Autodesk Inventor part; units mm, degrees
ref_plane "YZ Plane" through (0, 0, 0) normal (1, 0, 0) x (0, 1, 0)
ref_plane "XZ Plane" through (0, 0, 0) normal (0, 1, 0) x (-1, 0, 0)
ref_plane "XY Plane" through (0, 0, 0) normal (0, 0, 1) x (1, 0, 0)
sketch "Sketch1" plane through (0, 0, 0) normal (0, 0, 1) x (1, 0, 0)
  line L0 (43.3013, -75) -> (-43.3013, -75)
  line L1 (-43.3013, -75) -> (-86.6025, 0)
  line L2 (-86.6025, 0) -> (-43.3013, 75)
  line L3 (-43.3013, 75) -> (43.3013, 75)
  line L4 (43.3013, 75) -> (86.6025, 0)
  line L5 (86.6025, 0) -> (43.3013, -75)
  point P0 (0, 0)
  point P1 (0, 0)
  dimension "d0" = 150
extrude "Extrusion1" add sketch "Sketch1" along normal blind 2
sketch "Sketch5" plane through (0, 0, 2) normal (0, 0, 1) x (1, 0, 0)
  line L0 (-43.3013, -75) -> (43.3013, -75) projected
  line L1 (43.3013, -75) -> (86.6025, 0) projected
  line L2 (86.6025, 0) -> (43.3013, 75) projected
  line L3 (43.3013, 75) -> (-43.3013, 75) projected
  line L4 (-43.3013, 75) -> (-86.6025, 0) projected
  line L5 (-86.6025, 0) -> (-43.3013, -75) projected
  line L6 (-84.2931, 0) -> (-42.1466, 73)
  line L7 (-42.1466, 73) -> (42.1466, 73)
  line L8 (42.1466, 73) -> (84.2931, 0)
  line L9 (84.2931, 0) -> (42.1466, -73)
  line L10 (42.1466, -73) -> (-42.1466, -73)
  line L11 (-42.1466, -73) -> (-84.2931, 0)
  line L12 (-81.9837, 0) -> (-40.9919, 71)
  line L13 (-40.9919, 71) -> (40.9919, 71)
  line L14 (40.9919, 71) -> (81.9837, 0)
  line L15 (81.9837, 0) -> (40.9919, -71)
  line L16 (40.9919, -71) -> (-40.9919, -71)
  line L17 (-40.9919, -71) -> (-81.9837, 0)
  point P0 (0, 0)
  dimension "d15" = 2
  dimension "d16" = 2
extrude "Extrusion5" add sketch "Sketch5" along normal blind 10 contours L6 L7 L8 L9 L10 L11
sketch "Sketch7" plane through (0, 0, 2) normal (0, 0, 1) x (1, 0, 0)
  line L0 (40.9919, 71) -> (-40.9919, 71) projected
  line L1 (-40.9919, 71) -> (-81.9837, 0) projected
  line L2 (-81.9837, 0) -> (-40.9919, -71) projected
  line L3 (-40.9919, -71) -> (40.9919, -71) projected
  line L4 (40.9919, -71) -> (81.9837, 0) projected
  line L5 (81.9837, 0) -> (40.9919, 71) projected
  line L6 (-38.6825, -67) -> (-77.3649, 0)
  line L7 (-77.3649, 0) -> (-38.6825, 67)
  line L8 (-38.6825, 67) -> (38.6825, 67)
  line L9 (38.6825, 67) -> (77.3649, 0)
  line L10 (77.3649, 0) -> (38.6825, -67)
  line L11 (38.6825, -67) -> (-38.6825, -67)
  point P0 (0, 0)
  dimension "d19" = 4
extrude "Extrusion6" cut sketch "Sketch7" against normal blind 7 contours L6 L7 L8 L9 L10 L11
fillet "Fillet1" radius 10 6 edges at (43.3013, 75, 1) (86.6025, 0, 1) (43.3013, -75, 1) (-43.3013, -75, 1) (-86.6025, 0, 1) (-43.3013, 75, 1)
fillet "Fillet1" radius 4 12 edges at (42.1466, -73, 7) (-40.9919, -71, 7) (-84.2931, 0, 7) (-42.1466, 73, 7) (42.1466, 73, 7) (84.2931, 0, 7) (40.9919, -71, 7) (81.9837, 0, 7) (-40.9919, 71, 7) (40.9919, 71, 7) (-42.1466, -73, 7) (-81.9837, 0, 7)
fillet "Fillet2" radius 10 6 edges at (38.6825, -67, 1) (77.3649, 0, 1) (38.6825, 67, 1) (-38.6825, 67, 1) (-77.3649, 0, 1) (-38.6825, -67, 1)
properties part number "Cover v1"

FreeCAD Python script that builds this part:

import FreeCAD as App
import Part
import Sketcher
Q = App.Units.Quantity


def edges_at(feature, points):
    """Names of the edges that pass closest to the given points."""
    edges = feature.Shape.Edges
    near = lambda p: min(range(len(edges)), key=lambda i: edges[i].distToShape(Part.Vertex(*p))[0])
    return sorted({f"Edge{near(p) + 1}" for p in points})

doc = App.newDocument("Part")
body = doc.addObject("PartDesign::Body", "Body")

# Sketch on XY plane
sketch1 = body.newObject("Sketcher::SketchObject", "Sketch")
sketch1.AttachmentSupport = (doc.getObject("XY_Plane"), [""])
sketch1.MapMode = "FlatFace"
sketch1.addGeometry([
    Part.LineSegment(App.Vector(-43.3013, -75, 0), App.Vector(43.3013, -75, 0)),  # 0
    Part.LineSegment(App.Vector(43.3013, -75, 0), App.Vector(86.6025, 0, 0)),  # 1
    Part.LineSegment(App.Vector(86.6025, 0, 0), App.Vector(43.3013, 75, 0)),  # 2
    Part.LineSegment(App.Vector(43.3013, 75, 0), App.Vector(-43.3013, 75, 0)),  # 3
    Part.LineSegment(App.Vector(-43.3013, 75, 0), App.Vector(-86.6025, 0, 0)),  # 4
    Part.LineSegment(App.Vector(-86.6025, 0, 0), App.Vector(-43.3013, -75, 0)),  # 5
], False)
sketch1.addConstraint([
    Sketcher.Constraint("Coincident", 0, 2, 1, 1),
    Sketcher.Constraint("Coincident", 1, 2, 2, 1),
    Sketcher.Constraint("Coincident", 2, 2, 3, 1),
    Sketcher.Constraint("Coincident", 3, 2, 4, 1),
    Sketcher.Constraint("Coincident", 4, 2, 5, 1),
    Sketcher.Constraint("Coincident", 5, 2, 0, 1),
    Sketcher.Constraint("Horizontal", 0),
    Sketcher.Constraint("Horizontal", 3),
    Sketcher.Constraint("Symmetric", 0, 2, 3, 2, -1, 1),
    Sketcher.Constraint("Symmetric", 1, 2, 4, 2, -1, 1),
    Sketcher.Constraint("PointOnObject", 1, 2, -1),
    Sketcher.Constraint("Parallel", 2, 5),
    Sketcher.Constraint("Vertical", 0, 2, 2, 2),
    Sketcher.Constraint("DistanceY", 0, 2, 2, 2, 150.0),
    Sketcher.Constraint("Angle", 1, Q("60 deg")),
    Sketcher.Constraint("DistanceX", 0, 1, 0, 2, 86.6026),
])
pad1 = body.newObject("PartDesign::Pad", "Pad")
pad1.Profile = sketch1
pad1.Length = 2

# Sketch on XY plane
sketch2 = body.newObject("Sketcher::SketchObject", "Sketch001")
sketch2.AttachmentSupport = (doc.getObject("XY_Plane"), [""])
sketch2.MapMode = "FlatFace"
sketch2.AttachmentOffset = App.Placement(App.Vector(0, 0, 2), App.Rotation())
sketch2.addGeometry([
    Part.LineSegment(App.Vector(-42.1466, 73, 0), App.Vector(-84.2931, 0, 0)),  # 0
    Part.LineSegment(App.Vector(-84.2931, 0, 0), App.Vector(-42.1466, -73, 0)),  # 1
    Part.LineSegment(App.Vector(-42.1466, -73, 0), App.Vector(42.1466, -73, 0)),  # 2
    Part.LineSegment(App.Vector(42.1466, -73, 0), App.Vector(84.2931, 0, 0)),  # 3
    Part.LineSegment(App.Vector(84.2931, 0, 0), App.Vector(42.1466, 73, 0)),  # 4
    Part.LineSegment(App.Vector(42.1466, 73, 0), App.Vector(-42.1466, 73, 0)),  # 5
    Part.LineSegment(App.Vector(-40.9919, -71, 0), App.Vector(-81.9837, 0, 0)),  # 6
    Part.LineSegment(App.Vector(-81.9837, 0, 0), App.Vector(-40.9919, 71, 0)),  # 7
    Part.LineSegment(App.Vector(-40.9919, 71, 0), App.Vector(40.9919, 71, 0)),  # 8
    Part.LineSegment(App.Vector(40.9919, 71, 0), App.Vector(81.9837, 0, 0)),  # 9
    Part.LineSegment(App.Vector(81.9837, 0, 0), App.Vector(40.9919, -71, 0)),  # 10
    Part.LineSegment(App.Vector(40.9919, -71, 0), App.Vector(-40.9919, -71, 0)),  # 11
], False)
sketch2.addConstraint([
    Sketcher.Constraint("Coincident", 0, 2, 1, 1),
    Sketcher.Constraint("Coincident", 1, 2, 2, 1),
    Sketcher.Constraint("Coincident", 2, 2, 3, 1),
    Sketcher.Constraint("Coincident", 3, 2, 4, 1),
    Sketcher.Constraint("Coincident", 4, 2, 5, 1),
    Sketcher.Constraint("Coincident", 5, 2, 0, 1),
    Sketcher.Constraint("Coincident", 6, 2, 7, 1),
    Sketcher.Constraint("Coincident", 7, 2, 8, 1),
    Sketcher.Constraint("Coincident", 8, 2, 9, 1),
    Sketcher.Constraint("Coincident", 9, 2, 10, 1),
    Sketcher.Constraint("Coincident", 10, 2, 11, 1),
    Sketcher.Constraint("Coincident", 11, 2, 6, 1),
    Sketcher.Constraint("Horizontal", 2),
    Sketcher.Constraint("Horizontal", 5),
    Sketcher.Constraint("Horizontal", 8),
    Sketcher.Constraint("Horizontal", 11),
    Sketcher.Constraint("Symmetric", 0, 2, 3, 2, -1, 1),
    Sketcher.Constraint("Symmetric", 1, 2, 4, 2, -1, 1),
    Sketcher.Constraint("Symmetric", 6, 2, 9, 2, -1, 1),
    Sketcher.Constraint("Symmetric", 7, 2, 10, 2, -1, 1),
    Sketcher.Constraint("PointOnObject", 0, 2, -1),
    Sketcher.Constraint("PointOnObject", 6, 2, -1),
    Sketcher.Constraint("Parallel", 0, 3),
    Sketcher.Constraint("Parallel", 4, 6),
    Sketcher.Constraint("Parallel", 3, 7),
    Sketcher.Constraint("Parallel", 6, 9),
    Sketcher.Constraint("Vertical", 2, 2, 4, 2),
    Sketcher.Constraint("DistanceY", 7, 2, 5, 2, 2.0),
    Sketcher.Constraint("Angle", 0, Q("-120 deg")),
    Sketcher.Constraint("DistanceY", 1, 2, -1, 1, 73.0),
    Sketcher.Constraint("DistanceX", 2, 1, 2, 2, 84.2932),
    Sketcher.Constraint("DistanceX", 8, 1, 8, 2, 81.9838),
])
pad2 = body.newObject("PartDesign::Pad", "Pad001")
pad2.Profile = sketch2
pad2.Length = 10

# Sketch on XY plane
sketch3 = body.newObject("Sketcher::SketchObject", "Sketch002")
sketch3.AttachmentSupport = (doc.getObject("XY_Plane"), [""])
sketch3.MapMode = "FlatFace"
sketch3.AttachmentOffset = App.Placement(App.Vector(0, 0, 2), App.Rotation())
sketch3.addGeometry([
    Part.LineSegment(App.Vector(-77.3649, 0, 0), App.Vector(-38.6825, -67, 0)),  # 0
    Part.LineSegment(App.Vector(-38.6825, -67, 0), App.Vector(38.6825, -67, 0)),  # 1
    Part.LineSegment(App.Vector(38.6825, -67, 0), App.Vector(77.3649, 0, 0)),  # 2
    Part.LineSegment(App.Vector(77.3649, 0, 0), App.Vector(38.6825, 67, 0)),  # 3
    Part.LineSegment(App.Vector(38.6825, 67, 0), App.Vector(-38.6825, 67, 0)),  # 4
    Part.LineSegment(App.Vector(-38.6825, 67, 0), App.Vector(-77.3649, 0, 0)),  # 5
], False)
sketch3.addConstraint([
    Sketcher.Constraint("Coincident", 0, 2, 1, 1),
    Sketcher.Constraint("Coincident", 1, 2, 2, 1),
    Sketcher.Constraint("Coincident", 2, 2, 3, 1),
    Sketcher.Constraint("Coincident", 3, 2, 4, 1),
    Sketcher.Constraint("Coincident", 4, 2, 5, 1),
    Sketcher.Constraint("Coincident", 5, 2, 0, 1),
    Sketcher.Constraint("Horizontal", 1),
    Sketcher.Constraint("Horizontal", 4),
    Sketcher.Constraint("Symmetric", 0, 2, 3, 2, -1, 1),
    Sketcher.Constraint("Symmetric", 2, 2, 5, 2, -1, 1),
    Sketcher.Constraint("PointOnObject", 2, 2, -1),
    Sketcher.Constraint("Parallel", 2, 5),
    Sketcher.Constraint("Vertical", 1, 2, 3, 2),
    Sketcher.Constraint("Angle", 0, Q("-60 deg")),
    Sketcher.Constraint("DistanceY", 0, 2, -1, 1, 67.0),
    Sketcher.Constraint("DistanceX", 1, 1, 1, 2, 77.365),
])
pocket1 = body.newObject("PartDesign::Pocket", "Pocket")
pocket1.Profile = sketch3
pocket1.Length = 7
doc.recompute()

fillet = body.newObject("PartDesign::Fillet", "Fillet")
fillet.Base = (pocket1, edges_at(pocket1, [
    (43.301, 75, 1),
    (86.603, 0, 1),
    (43.301, -75, 1),
    (-43.301, -75, 1),
    (-86.603, 0, 1),
    (-43.301, 75, 1),
]))
fillet.Radius = 10
doc.recompute()

fillet2 = body.newObject("PartDesign::Fillet", "Fillet001")
fillet2.Base = (fillet, edges_at(fillet, [
    (42.147, -73, 7),
    (-40.992, -71, 7),
    (-84.293, 0, 7),
    (-42.147, 73, 7),
    (42.147, 73, 7),
    (84.293, 0, 7),
    (40.992, -71, 7),
    (81.984, 0, 7),
    (-40.992, 71, 7),
    (40.992, 71, 7),
    (-42.147, -73, 7),
    (-81.984, 0, 7),
]))
fillet2.Radius = 4
doc.recompute()

fillet3 = body.newObject("PartDesign::Fillet", "Fillet002")
fillet3.Base = (fillet2, edges_at(fillet2, [
    (38.682, -67, 1),
    (77.365, 0, 1),
    (38.682, 67, 1),
    (-38.682, 67, 1),
    (-77.365, 0, 1),
    (-38.682, -67, 1),
]))
fillet3.Radius = 10

doc.recompute()
